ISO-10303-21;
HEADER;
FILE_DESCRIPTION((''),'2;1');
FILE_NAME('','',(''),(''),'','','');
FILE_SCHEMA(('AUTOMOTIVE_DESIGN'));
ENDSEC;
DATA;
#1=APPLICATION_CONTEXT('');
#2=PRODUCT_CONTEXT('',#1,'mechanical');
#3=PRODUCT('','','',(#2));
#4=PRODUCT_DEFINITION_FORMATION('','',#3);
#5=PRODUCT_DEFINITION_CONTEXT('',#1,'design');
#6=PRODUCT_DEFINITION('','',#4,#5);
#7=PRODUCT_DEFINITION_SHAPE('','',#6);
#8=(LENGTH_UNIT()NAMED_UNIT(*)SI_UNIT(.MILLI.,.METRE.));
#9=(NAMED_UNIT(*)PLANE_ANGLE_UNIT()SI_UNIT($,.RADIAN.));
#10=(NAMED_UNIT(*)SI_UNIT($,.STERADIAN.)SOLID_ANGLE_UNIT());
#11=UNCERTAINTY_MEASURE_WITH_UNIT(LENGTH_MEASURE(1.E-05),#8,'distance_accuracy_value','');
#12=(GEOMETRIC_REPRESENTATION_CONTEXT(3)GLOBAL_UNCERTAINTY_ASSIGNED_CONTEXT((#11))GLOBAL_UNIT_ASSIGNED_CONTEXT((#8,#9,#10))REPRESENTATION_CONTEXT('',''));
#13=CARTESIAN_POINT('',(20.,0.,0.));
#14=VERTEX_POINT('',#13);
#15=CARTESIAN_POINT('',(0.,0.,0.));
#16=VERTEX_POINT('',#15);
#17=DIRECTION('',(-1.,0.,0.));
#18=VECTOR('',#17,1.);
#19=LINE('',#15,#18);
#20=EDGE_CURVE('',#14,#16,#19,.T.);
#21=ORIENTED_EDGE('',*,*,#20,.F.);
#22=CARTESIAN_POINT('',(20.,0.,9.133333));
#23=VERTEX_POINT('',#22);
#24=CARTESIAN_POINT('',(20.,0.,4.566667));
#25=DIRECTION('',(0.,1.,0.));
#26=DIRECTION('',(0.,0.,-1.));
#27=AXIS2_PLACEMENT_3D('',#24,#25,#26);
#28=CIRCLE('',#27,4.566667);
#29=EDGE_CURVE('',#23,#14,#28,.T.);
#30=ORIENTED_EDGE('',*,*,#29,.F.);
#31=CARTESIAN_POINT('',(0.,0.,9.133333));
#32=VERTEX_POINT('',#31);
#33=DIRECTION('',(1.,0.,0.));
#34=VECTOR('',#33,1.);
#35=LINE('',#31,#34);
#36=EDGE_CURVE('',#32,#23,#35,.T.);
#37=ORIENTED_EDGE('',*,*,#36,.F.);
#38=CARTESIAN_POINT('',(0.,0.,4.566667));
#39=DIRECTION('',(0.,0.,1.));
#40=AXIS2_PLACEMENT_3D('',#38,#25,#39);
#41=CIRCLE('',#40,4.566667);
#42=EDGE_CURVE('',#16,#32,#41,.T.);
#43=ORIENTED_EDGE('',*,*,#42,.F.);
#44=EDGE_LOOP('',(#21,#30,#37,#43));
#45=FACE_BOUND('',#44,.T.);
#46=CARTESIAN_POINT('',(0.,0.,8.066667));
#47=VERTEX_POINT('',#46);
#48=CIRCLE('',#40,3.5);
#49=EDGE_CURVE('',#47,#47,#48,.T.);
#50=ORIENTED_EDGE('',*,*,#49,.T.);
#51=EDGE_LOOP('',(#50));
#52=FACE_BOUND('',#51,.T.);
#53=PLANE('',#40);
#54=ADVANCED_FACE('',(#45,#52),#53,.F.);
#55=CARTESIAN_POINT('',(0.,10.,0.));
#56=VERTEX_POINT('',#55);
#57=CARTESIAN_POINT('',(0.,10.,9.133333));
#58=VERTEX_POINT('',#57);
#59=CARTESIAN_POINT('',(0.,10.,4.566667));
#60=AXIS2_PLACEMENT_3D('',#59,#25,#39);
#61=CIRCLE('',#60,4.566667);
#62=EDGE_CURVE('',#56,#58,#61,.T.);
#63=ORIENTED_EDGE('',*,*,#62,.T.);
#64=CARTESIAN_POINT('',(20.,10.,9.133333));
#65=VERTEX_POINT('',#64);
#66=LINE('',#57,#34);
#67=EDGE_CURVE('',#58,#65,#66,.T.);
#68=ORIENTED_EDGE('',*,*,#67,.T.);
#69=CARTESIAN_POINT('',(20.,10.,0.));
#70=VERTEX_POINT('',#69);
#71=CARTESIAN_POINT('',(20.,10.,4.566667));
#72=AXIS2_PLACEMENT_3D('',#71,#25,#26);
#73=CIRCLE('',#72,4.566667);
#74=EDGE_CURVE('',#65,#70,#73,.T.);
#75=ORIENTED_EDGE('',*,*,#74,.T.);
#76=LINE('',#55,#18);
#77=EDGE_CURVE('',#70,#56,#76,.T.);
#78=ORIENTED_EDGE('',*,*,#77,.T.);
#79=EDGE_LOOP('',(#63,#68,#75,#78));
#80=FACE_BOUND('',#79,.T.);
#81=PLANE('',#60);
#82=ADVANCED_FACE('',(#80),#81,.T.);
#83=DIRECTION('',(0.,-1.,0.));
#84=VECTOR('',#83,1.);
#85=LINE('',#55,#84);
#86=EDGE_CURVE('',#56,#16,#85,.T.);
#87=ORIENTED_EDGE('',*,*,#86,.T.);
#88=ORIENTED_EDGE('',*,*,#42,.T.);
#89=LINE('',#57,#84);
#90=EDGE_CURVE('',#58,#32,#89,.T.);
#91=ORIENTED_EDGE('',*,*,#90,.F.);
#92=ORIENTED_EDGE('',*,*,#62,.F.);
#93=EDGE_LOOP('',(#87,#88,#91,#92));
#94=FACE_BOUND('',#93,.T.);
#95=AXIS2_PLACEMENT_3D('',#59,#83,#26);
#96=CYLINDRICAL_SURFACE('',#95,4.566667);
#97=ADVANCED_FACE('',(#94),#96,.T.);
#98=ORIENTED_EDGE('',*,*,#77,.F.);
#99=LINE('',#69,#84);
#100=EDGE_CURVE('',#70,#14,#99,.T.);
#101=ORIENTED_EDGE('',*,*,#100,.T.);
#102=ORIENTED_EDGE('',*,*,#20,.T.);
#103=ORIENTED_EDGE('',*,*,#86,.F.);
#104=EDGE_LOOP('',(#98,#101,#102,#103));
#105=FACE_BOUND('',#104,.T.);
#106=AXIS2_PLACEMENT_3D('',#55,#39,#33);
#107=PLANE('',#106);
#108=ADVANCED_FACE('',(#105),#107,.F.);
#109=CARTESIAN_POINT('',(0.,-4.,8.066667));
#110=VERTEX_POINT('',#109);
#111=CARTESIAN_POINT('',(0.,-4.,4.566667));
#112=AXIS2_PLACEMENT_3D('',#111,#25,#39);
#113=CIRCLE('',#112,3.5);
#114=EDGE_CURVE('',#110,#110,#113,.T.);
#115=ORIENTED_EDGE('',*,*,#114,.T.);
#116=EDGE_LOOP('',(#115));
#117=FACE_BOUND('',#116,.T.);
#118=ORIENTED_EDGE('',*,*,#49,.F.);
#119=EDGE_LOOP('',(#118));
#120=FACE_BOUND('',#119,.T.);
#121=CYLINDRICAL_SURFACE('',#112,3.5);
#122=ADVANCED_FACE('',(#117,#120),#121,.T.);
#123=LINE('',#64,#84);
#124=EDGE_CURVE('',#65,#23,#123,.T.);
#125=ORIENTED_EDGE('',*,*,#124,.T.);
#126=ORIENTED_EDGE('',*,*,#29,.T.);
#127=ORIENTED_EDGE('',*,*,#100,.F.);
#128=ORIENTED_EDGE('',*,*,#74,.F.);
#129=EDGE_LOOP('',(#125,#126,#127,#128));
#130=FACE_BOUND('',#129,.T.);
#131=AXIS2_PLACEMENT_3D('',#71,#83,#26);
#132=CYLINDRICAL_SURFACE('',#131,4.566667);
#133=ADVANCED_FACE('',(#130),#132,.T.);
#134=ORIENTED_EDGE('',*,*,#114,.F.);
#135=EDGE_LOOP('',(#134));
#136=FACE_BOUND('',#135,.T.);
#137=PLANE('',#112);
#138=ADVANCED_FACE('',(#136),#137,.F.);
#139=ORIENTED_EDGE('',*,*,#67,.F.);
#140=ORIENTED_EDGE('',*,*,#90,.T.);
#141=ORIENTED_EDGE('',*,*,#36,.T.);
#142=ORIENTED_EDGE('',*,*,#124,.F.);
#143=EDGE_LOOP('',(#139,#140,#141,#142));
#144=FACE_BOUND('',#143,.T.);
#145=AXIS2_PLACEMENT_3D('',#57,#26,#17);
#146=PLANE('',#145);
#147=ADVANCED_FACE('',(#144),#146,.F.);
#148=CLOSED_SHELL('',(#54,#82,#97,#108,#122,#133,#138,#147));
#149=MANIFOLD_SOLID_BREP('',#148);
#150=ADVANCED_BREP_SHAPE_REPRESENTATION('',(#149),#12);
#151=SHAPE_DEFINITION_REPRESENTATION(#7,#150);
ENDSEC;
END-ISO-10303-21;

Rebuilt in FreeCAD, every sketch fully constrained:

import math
import FreeCAD as App
import Part
import Sketcher

V = App.Vector

doc = App.newDocument("Part")
body = doc.addObject("PartDesign::Body", "Body")

# Sketch on XZ plane
sketch1 = doc.addObject("Sketcher::SketchObject", "Sketch")
body.addObject(sketch1)
sketch1.AttachmentSupport = (doc.XZ_Plane, [""])
sketch1.MapMode = "FlatFace"
sketch1.addGeometry([
    Part.LineSegment(V(20, 0, 0), V(0, 0, 0)),
    Part.ArcOfCircle(Part.Circle(V(0, 4.6, 0), V(0, 0, 1), 4.6), math.radians(90), math.radians(270)),
    Part.LineSegment(V(0, 9.1, 0), V(20, 9.1, 0)),
    Part.ArcOfCircle(Part.Circle(V(20, 4.6, 0), V(0, 0, 1), 4.6), math.radians(-90), math.radians(90)),
], False)
sketch1.addConstraint([
    Sketcher.Constraint("Tangent", 0, 2, 1, 2),
    Sketcher.Constraint("Tangent", 1, 1, 2, 1),
    Sketcher.Constraint("Tangent", 2, 2, 3, 2),
    Sketcher.Constraint("Tangent", 3, 1, 0, 1),
    Sketcher.Constraint("Horizontal", 0),
    Sketcher.Constraint("Horizontal", 2),
    Sketcher.Constraint("Coincident", 0, 2, -1, 1),
    Sketcher.Constraint("DistanceX", 0, 2, 0, 1, 20.0),
    Sketcher.Constraint("Radius", 1, 4.566667),
])
pad1 = doc.addObject("PartDesign::Pad", "Pad")
body.addObject(pad1)
pad1.Profile = sketch1
pad1.Length = 10
pad1.Reversed = True

# Sketch on XZ plane
sketch2 = doc.addObject("Sketcher::SketchObject", "Sketch001")
body.addObject(sketch2)
sketch2.AttachmentSupport = (doc.XZ_Plane, [""])
sketch2.MapMode = "FlatFace"
sketch2.addGeometry(Part.Circle(V(0, 4.6, 0), V(0, 0, 1), 3.5), False)
sketch2.addConstraint([
    Sketcher.Constraint("PointOnObject", 0, 3, -2),
    Sketcher.Constraint("Diameter", 0, 7.0),
    Sketcher.Constraint("DistanceY", -1, 1, 0, 3, 4.566667),
])
pad2 = doc.addObject("PartDesign::Pad", "Pad001")
body.addObject(pad2)
pad2.Profile = sketch2
pad2.Length = 4

doc.recompute()
